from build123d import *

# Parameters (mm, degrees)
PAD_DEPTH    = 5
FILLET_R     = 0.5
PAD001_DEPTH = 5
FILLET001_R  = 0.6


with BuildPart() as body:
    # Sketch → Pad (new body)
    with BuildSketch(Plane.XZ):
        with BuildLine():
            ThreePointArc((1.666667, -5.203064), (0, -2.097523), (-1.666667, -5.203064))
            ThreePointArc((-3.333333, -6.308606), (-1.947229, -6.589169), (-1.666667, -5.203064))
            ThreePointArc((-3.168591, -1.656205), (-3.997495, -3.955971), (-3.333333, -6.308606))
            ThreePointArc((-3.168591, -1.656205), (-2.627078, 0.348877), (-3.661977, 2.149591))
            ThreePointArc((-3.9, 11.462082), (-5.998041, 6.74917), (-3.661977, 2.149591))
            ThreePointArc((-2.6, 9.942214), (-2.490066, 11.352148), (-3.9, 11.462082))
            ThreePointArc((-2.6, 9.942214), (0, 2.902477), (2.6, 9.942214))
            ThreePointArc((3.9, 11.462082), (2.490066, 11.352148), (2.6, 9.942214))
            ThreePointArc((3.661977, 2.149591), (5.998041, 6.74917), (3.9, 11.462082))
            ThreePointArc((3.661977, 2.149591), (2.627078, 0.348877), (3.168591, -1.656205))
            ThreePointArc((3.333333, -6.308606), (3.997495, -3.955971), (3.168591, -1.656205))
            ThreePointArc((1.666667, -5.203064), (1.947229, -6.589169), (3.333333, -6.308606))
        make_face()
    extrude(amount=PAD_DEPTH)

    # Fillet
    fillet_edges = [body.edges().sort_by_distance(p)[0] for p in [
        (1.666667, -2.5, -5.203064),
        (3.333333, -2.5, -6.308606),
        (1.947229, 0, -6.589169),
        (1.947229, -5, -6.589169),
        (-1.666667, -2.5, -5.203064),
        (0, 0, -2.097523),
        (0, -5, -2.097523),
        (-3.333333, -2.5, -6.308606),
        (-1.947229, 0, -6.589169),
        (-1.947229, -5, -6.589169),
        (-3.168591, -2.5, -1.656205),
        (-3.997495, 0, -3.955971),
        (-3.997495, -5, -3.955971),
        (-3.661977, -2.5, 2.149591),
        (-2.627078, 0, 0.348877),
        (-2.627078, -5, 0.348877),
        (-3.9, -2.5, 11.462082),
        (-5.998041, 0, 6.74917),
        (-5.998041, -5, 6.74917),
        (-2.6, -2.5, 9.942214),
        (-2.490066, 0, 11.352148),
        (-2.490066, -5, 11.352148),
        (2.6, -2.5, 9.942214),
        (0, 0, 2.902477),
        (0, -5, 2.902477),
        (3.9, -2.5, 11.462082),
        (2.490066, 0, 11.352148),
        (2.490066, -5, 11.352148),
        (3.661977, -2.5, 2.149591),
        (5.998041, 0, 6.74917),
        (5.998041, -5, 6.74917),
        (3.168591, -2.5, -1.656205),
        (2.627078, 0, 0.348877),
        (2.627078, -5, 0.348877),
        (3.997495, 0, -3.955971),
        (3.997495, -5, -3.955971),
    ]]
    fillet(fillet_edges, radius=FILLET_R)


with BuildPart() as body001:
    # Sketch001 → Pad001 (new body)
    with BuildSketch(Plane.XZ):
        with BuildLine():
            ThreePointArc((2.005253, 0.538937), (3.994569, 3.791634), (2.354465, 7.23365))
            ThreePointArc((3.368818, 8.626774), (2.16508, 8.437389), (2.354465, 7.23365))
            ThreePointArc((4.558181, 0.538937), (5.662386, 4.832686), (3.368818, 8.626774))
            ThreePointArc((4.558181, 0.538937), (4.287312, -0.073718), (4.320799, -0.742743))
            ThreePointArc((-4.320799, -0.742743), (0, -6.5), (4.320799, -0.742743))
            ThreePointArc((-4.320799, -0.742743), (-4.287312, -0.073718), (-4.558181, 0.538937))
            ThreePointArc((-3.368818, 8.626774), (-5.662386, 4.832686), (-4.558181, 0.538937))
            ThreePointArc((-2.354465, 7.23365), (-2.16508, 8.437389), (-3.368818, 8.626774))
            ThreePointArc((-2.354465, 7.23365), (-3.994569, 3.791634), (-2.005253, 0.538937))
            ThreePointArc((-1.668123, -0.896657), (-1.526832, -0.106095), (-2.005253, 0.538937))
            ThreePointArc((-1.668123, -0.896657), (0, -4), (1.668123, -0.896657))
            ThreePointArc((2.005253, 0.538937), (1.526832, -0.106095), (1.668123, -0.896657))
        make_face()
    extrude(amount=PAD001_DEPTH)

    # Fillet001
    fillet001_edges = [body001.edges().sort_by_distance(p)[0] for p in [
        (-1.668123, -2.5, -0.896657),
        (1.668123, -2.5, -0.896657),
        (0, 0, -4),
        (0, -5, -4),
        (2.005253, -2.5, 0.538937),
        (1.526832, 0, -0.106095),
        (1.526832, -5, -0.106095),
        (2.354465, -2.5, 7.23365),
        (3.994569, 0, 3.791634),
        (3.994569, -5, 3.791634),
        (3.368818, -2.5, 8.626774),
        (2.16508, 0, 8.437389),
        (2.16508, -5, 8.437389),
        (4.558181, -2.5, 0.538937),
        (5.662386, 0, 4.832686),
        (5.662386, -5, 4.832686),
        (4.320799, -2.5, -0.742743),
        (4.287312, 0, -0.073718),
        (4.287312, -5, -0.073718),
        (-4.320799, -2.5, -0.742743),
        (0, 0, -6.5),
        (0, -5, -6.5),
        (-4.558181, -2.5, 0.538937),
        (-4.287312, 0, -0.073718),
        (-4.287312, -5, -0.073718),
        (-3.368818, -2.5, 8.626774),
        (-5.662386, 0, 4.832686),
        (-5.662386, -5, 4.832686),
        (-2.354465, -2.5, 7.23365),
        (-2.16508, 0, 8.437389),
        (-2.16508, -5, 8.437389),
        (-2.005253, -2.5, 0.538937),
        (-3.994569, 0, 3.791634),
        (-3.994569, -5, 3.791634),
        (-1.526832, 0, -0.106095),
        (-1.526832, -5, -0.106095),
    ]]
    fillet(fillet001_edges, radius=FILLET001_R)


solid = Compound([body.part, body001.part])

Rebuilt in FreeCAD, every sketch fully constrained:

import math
import FreeCAD as App
import Part
import Sketcher

doc = App.newDocument("Part")
body = doc.addObject("PartDesign::Body", "Body")

# Sketch on XZ plane
sketch1 = body.newObject("Sketcher::SketchObject", "Sketch")
sketch1.AttachmentSupport = (doc.getObject("XZ_Plane"), [""])
sketch1.MapMode = "FlatFace"
sketch1.addGeometry([
    Part.ArcOfCircle(Part.Circle(App.Vector(0, -4.1, 0), App.Vector(0, 0, 1), 2), math.radians(-34), math.radians(214)),  # 0
    Part.ArcOfCircle(Part.Circle(App.Vector(2.5, -5.8, 0), App.Vector(0, 0, 1), 1), math.radians(146), math.radians(326)),  # 1
    Part.ArcOfCircle(Part.Circle(App.Vector(0, -4.1, 0), App.Vector(0, 0, 1), 4), math.radians(-34), math.radians(38)),  # 2
    Part.ArcOfCircle(Part.Circle(App.Vector(5.3, 0, 0), App.Vector(0, 0, 1), 2.7), math.radians(128), math.radians(218)),  # 3
    Part.ArcOfCircle(Part.Circle(App.Vector(0, 6.9, 0), App.Vector(0, 0, 1), 6), math.radians(-52), math.radians(49)),  # 4
    Part.ArcOfCircle(Part.Circle(App.Vector(3.2, 10.7, 0), App.Vector(0, 0, 1), 1), math.radians(49), math.radians(229)),  # 5
    Part.ArcOfCircle(Part.Circle(App.Vector(0, 6.9, 0), App.Vector(0, 0, 1), 4), math.radians(131), math.radians(409)),  # 6
    Part.ArcOfCircle(Part.Circle(App.Vector(-3.2, 10.7, 0), App.Vector(0, 0, 1), 1), math.radians(-49), math.radians(131)),  # 7
    Part.ArcOfCircle(Part.Circle(App.Vector(0, 6.9, 0), App.Vector(0, 0, 1), 6), math.radians(131), math.radians(232)),  # 8
    Part.ArcOfCircle(Part.Circle(App.Vector(-5.3, 0, 0), App.Vector(0, 0, 1), 2.7), math.radians(-38), math.radians(52)),  # 9
    Part.ArcOfCircle(Part.Circle(App.Vector(0, -4.1, 0), App.Vector(0, 0, 1), 4), math.radians(142), math.radians(214)),  # 10
    Part.ArcOfCircle(Part.Circle(App.Vector(-2.5, -5.8, 0), App.Vector(0, 0, 1), 1), math.radians(-146), math.radians(34)),  # 11
], False)
sketch1.addConstraint([
    Sketcher.Constraint("Tangent", 0, 1, 1, 1),
    Sketcher.Constraint("Tangent", 1, 2, 2, 1),
    Sketcher.Constraint("Tangent", 2, 2, 3, 2),
    Sketcher.Constraint("Tangent", 3, 1, 4, 1),
    Sketcher.Constraint("Tangent", 4, 2, 5, 1),
    Sketcher.Constraint("Tangent", 5, 2, 6, 2),
    Sketcher.Constraint("Tangent", 6, 1, 7, 1),
    Sketcher.Constraint("Tangent", 7, 2, 8, 1),
    Sketcher.Constraint("Tangent", 8, 2, 9, 2),
    Sketcher.Constraint("Tangent", 9, 1, 10, 1),
    Sketcher.Constraint("Tangent", 10, 2, 11, 1),
    Sketcher.Constraint("Tangent", 11, 2, 0, 2),
    Sketcher.Constraint("Coincident", 2, 3, 0, 3),
    Sketcher.Constraint("Coincident", 6, 3, 4, 3),
    Sketcher.Constraint("Coincident", 8, 3, 4, 3),
    Sketcher.Constraint("Coincident", 10, 3, 0, 3),
    Sketcher.Constraint("Equal", 1, 5),
    Sketcher.Constraint("Equal", 5, 7),
    Sketcher.Constraint("Equal", 3, 9),
    Sketcher.Constraint("Equal", 2, 10),
    Sketcher.Constraint("Symmetric", 3, 3, 9, 3, -1, 1),
    Sketcher.Constraint("Symmetric", 5, 3, 7, 3, -2),
    Sketcher.Constraint("Horizontal", 1, 3, 11, 3),
    Sketcher.Constraint("Radius", 0, 2.0),
    Sketcher.Constraint("Radius", 1, 1.0),
    Sketcher.Constraint("Radius", 4, 6.0),
    Sketcher.Constraint("DistanceY", 2, 3, 4, 3, 10.999999),
    Sketcher.Constraint("DistanceX", 11, 3, 1, 3, 4.999999),
    Sketcher.Constraint("DistanceX", -1, 1, 4, 2, 3.9),
    Sketcher.Constraint("Radius", 3, 2.713624),
])
pad1 = body.newObject("PartDesign::Pad", "Pad")
pad1.Profile = sketch1
pad1.Length = 5
doc.recompute()

fillet = body.newObject("PartDesign::Fillet", "Fillet")
fillet.Base = (pad1, ["Edge1"])
fillet.UseAllEdges = True
fillet.Radius = 0.5
body2 = doc.addObject("PartDesign::Body", "Body001")

# Sketch on XZ plane
sketch2 = body2.newObject("Sketcher::SketchObject", "Sketch001")
sketch2.AttachmentSupport = (doc.getObject("XZ_Plane001"), [""])
sketch2.MapMode = "FlatFace"
sketch2.addGeometry([
    Part.ArcOfCircle(Part.Circle(App.Vector(0, 4, 0), App.Vector(0, 0, 1), 4), math.radians(-60), math.radians(54)),  # 0
    Part.ArcOfCircle(Part.Circle(App.Vector(2.5, -0.3, 0), App.Vector(0, 0, 1), 1), math.radians(120), math.radians(213)),  # 1
    Part.ArcOfCircle(Part.Circle(App.Vector(0, -2, 0), App.Vector(0, 0, 1), 2), math.radians(147), math.radians(393)),  # 2
    Part.ArcOfCircle(Part.Circle(App.Vector(-2.5, -0.3, 0), App.Vector(0, 0, 1), 1), math.radians(-33), math.radians(60)),  # 3
    Part.ArcOfCircle(Part.Circle(App.Vector(0, 4, 0), App.Vector(0, 0, 1), 4), math.radians(126), math.radians(240)),  # 4
    Part.ArcOfCircle(Part.Circle(App.Vector(-2.9, 7.9, 0), App.Vector(0, 0, 1), 0.9), math.radians(-54), math.radians(126)),  # 5
    Part.ArcOfCircle(Part.Circle(App.Vector(0, 4, 0), App.Vector(0, 0, 1), 5.7), math.radians(126), math.radians(217)),  # 6
    Part.ArcOfCircle(Part.Circle(App.Vector(-5.7, -0.3, 0), App.Vector(0, 0, 1), 1.4), math.radians(-16), math.radians(37)),  # 7
    Part.ArcOfCircle(Part.Circle(App.Vector(0, -2, 0), App.Vector(0, 0, 1), 4.5), math.radians(164), math.radians(376)),  # 8
    Part.ArcOfCircle(Part.Circle(App.Vector(5.7, -0.3, 0), App.Vector(0, 0, 1), 1.4), math.radians(143), math.radians(196)),  # 9
    Part.ArcOfCircle(Part.Circle(App.Vector(0, 4, 0), App.Vector(0, 0, 1), 5.7), math.radians(-37), math.radians(54)),  # 10
    Part.ArcOfCircle(Part.Circle(App.Vector(2.9, 7.9, 0), App.Vector(0, 0, 1), 0.9), math.radians(54), math.radians(234)),  # 11
], False)
sketch2.addConstraint([
    Sketcher.Constraint("Tangent", 0, 1, 1, 1),
    Sketcher.Constraint("Tangent", 1, 2, 2, 2),
    Sketcher.Constraint("Tangent", 2, 1, 3, 1),
    Sketcher.Constraint("Tangent", 3, 2, 4, 2),
    Sketcher.Constraint("Tangent", 4, 1, 5, 1),
    Sketcher.Constraint("Tangent", 5, 2, 6, 1),
    Sketcher.Constraint("Tangent", 6, 2, 7, 2),
    Sketcher.Constraint("Tangent", 7, 1, 8, 1),
    Sketcher.Constraint("Tangent", 8, 2, 9, 2),
    Sketcher.Constraint("Tangent", 9, 1, 10, 1),
    Sketcher.Constraint("Tangent", 10, 2, 11, 1),
    Sketcher.Constraint("Tangent", 11, 2, 0, 2),
    Sketcher.Constraint("Coincident", 4, 3, 0, 3),
    Sketcher.Constraint("Coincident", 6, 3, 0, 3),
    Sketcher.Constraint("Coincident", 8, 3, 2, 3),
    Sketcher.Constraint("Coincident", 10, 3, 0, 3),
    Sketcher.Constraint("Equal", 1, 3),
    Sketcher.Constraint("Equal", 0, 4),
    Sketcher.Constraint("Equal", 7, 9),
    Sketcher.Constraint("Equal", 6, 10),
    Sketcher.Constraint("Symmetric", 1, 3, 3, 3, -2),
    Sketcher.Constraint("Horizontal", 3, 3, 7, 3),
    Sketcher.Constraint("Horizontal", 5, 3, 11, 3),
    Sketcher.Constraint("Horizontal", 3, 2, 6, 2),
    Sketcher.Constraint("Radius", 0, 4.0),
    Sketcher.Constraint("Radius", 2, 2.0),
    Sketcher.Constraint("Radius", 8, 4.5),
    Sketcher.Constraint("DistanceY", -1, 1, 0, 3, 4.0),
    Sketcher.Constraint("DistanceY", 2, 3, -1, 1, 2.0),
    Sketcher.Constraint("Radius", 5, 0.861642),
    Sketcher.Constraint("DistanceX", 5, 3, -1, 1, 2.861642),
])
pad2 = body2.newObject("PartDesign::Pad", "Pad001")
pad2.Profile = sketch2
pad2.Length = 5
doc.recompute()

fillet2 = body2.newObject("PartDesign::Fillet", "Fillet001")
fillet2.Base = (pad2, ["Edge1"])
fillet2.UseAllEdges = True
fillet2.Radius = 0.6

doc.recompute()
